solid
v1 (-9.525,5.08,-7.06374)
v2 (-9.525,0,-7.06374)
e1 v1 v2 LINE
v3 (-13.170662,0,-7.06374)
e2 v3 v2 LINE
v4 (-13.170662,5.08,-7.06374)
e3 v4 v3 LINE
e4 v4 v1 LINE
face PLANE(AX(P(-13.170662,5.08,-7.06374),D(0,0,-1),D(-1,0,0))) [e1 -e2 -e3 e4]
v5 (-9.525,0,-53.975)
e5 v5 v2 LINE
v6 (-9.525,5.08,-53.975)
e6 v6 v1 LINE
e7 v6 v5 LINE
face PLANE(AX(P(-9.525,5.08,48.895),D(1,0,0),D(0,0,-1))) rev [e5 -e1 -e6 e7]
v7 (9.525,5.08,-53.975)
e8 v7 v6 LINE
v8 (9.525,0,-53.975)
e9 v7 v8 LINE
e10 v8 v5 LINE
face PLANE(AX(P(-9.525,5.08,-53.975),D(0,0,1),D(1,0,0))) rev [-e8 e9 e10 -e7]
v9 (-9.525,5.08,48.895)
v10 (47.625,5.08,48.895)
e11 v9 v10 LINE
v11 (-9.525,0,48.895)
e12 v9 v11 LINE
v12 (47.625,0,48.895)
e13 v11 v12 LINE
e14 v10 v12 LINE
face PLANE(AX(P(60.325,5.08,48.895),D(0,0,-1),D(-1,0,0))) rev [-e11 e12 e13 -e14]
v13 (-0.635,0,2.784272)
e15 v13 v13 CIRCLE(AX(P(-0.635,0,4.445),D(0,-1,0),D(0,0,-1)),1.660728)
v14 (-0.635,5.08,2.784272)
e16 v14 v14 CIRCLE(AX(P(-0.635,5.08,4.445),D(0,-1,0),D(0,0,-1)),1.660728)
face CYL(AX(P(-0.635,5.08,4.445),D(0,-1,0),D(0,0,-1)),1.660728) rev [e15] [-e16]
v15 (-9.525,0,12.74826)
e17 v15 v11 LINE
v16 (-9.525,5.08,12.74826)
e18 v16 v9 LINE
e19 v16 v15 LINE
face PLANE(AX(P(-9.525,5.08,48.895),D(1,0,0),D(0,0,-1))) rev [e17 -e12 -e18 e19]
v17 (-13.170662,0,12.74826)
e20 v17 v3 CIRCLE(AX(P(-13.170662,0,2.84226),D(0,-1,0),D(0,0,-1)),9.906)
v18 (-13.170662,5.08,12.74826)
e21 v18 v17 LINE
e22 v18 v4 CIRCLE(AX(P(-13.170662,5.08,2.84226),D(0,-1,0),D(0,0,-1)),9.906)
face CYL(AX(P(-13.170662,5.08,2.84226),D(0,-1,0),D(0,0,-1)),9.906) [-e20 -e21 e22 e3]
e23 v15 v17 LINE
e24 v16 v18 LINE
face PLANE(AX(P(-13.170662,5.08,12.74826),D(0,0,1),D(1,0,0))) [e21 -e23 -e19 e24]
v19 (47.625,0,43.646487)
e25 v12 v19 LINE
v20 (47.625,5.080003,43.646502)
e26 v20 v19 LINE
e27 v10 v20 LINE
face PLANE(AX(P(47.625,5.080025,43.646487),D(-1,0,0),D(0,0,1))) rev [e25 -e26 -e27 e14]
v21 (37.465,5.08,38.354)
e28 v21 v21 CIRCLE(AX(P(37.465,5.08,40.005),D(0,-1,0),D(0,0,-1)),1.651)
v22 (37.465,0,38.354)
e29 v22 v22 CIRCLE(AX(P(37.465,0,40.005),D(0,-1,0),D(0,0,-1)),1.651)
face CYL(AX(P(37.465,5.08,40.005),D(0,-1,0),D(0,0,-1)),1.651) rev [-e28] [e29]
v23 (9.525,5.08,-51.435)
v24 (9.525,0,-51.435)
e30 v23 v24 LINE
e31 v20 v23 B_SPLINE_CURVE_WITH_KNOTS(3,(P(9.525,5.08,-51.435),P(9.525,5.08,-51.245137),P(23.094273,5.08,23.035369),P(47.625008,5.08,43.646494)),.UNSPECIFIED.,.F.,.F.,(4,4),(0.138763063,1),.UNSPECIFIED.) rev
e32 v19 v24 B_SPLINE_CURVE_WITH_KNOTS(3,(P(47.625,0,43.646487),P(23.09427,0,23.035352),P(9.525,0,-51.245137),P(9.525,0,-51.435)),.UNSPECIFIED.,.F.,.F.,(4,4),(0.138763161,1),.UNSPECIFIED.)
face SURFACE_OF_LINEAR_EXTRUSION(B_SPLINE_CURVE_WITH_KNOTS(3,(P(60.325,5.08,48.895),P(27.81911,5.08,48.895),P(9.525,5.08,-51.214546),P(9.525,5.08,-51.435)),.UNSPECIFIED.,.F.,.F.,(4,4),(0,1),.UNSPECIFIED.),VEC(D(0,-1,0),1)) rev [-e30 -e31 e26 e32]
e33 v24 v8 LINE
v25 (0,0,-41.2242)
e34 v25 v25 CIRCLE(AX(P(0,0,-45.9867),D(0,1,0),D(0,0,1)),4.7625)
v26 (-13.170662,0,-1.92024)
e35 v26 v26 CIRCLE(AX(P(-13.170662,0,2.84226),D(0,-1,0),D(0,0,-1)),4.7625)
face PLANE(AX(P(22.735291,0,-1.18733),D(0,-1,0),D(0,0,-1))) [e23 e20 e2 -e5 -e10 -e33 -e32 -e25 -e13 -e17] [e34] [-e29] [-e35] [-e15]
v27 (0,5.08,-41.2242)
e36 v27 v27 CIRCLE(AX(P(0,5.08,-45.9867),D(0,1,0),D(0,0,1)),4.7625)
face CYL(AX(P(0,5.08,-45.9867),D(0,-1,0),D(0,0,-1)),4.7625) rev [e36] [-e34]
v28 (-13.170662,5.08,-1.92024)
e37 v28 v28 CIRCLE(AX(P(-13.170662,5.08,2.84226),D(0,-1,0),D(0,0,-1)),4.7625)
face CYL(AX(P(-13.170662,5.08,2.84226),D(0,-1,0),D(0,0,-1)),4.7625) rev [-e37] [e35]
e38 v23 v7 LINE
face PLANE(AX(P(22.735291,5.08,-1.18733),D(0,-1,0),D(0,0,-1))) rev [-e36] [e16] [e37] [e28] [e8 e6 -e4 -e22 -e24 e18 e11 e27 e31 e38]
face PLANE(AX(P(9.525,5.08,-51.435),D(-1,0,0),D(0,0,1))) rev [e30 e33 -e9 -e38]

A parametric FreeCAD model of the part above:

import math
import FreeCAD as App
import Part
import Sketcher
from FreeCAD import Vector
Q = App.Units.Quantity

doc = App.newDocument("Part")
params = doc.addObject("Spreadsheet::Sheet", "Params")
for row, (alias, value) in enumerate([
    ("sketch1_diameter", "0.375 in"),
    ("sketch1_height", "0.1 in"),
    ("sketch1_width", "0.75 in"),
    ("pad1_length", "0.2 in"),
    ("sketch2_height", "0.2 in"),
    ("sketch2_width", "0.75 in"),
    ("pad2_length", "0.2 in"),
    ("sketch3_diameter", "0.13 in"),
    ("sketch4_radius", "0.39 in"),
    ("sketch4_diameter", "0.375 in"),
    ("pad3_length", "0.2 in"),
    ("sketch5_diameter", "0.375 in"),
    ("sketch6_height", "0.2 in"),
    ("sketch6_width", "0.75 in"),
], start=1):
    params.set(f"A{row}", alias)
    params.set(f"B{row}", "=" + value)
    params.setAlias(f"B{row}", alias)

body = doc.addObject("PartDesign::Body", "Body")

# Sketch on XZ plane
sketch1 = body.newObject("Sketcher::SketchObject", "Sketch")
sketch1.AttachmentSupport = (doc.getObject("XZ_Plane"), [""])
sketch1.MapMode = "FlatFace"
sketch1.addGeometry(Part.LineSegment(Vector(9.525, -53.975, 0), Vector(-9.525, -53.975, 0)), False)
sketch1.addGeometry(Part.LineSegment(Vector(-9.525, -53.975, 0), Vector(-9.525, 48.895, 0)), False)
sketch1.addGeometry(Part.LineSegment(Vector(-9.525, 48.895, 0), Vector(60.325, 48.895, 0)), False)
sketch1.addGeometry(Part.BSplineCurve([Vector(9.525, -51.435, 0), Vector(9.525, -51.214546, 0), Vector(27.81911, 48.895, 0), Vector(60.325, 48.895, 0)], [4, 4], [0, 1], False, 3, [1, 1, 1, 1], False), False)
sketch1.addGeometry(Part.LineSegment(Vector(9.525, -51.435, 0), Vector(9.525, -53.975, 0)), False)
sketch1.addGeometry(Part.Circle(Vector(0, -45.9867, 0), Vector(0, 0, 1), 4.7625), False)
sketch1.addConstraint(Sketcher.Constraint("Block", 3))
sketch1.addConstraint(Sketcher.Constraint("Coincident", 0, 2, 1, 1))
sketch1.addConstraint(Sketcher.Constraint("Coincident", 1, 2, 2, 1))
sketch1.addConstraint(Sketcher.Constraint("Coincident", 2, 2, 3, 2))
sketch1.addConstraint(Sketcher.Constraint("Coincident", 3, 1, 4, 1))
sketch1.addConstraint(Sketcher.Constraint("Coincident", 4, 2, 0, 1))
sketch1.addConstraint(Sketcher.Constraint("Horizontal", 0))
sketch1.addConstraint(Sketcher.Constraint("Vertical", 1))
sketch1.addConstraint(Sketcher.Constraint("Horizontal", 2))
sketch1.addConstraint(Sketcher.Constraint("Vertical", 4))
sketch1.addConstraint(Sketcher.Constraint("PointOnObject", 5, 3, -2))
sketch1.addConstraint(Sketcher.Constraint("Diameter", 5, Q("0.375 in")))
sketch1.addConstraint(Sketcher.Constraint("DistanceY", 4, 2, 4, 1, Q("0.1 in")))
sketch1.addConstraint(Sketcher.Constraint("DistanceX", 0, 2, 0, 1, Q("0.75 in")))
sketch1.addConstraint(Sketcher.Constraint("DistanceY", 5, 3, -1, 1, Q("1.8105 in")))
sketch1.setExpression("Constraints[11]", "Params.sketch1_diameter")
sketch1.setExpression("Constraints[12]", "Params.sketch1_height")
sketch1.setExpression("Constraints[13]", "Params.sketch1_width")
pad1 = body.newObject("PartDesign::Pad", "Pad")
pad1.Profile = sketch1
pad1.setExpression("Length", "Params.pad1_length")
pad1.Reversed = True

# Sketch on XZ plane
sketch2 = body.newObject("Sketcher::SketchObject", "Sketch001")
sketch2.AttachmentSupport = (doc.getObject("XZ_Plane"), [""])
sketch2.MapMode = "FlatFace"
sketch2.AttachmentOffset = App.Placement(Vector(0, 0, -0.2 * 25.4), App.Rotation())
sketch2.addGeometry(Part.LineSegment(Vector(41, 49, 0), Vector(41, 54, 0)), False)
sketch2.addGeometry(Part.LineSegment(Vector(41, 54, 0), Vector(60, 54, 0)), False)
sketch2.addGeometry(Part.LineSegment(Vector(60, 54, 0), Vector(60, 49, 0)), False)
sketch2.addGeometry(Part.LineSegment(Vector(60, 49, 0), Vector(41, 49, 0)), False)
sketch2.addConstraint(Sketcher.Constraint("Coincident", 0, 2, 1, 1))
sketch2.addConstraint(Sketcher.Constraint("Coincident", 1, 2, 2, 1))
sketch2.addConstraint(Sketcher.Constraint("Coincident", 2, 2, 3, 1))
sketch2.addConstraint(Sketcher.Constraint("Coincident", 3, 2, 0, 1))
sketch2.addConstraint(Sketcher.Constraint("Vertical", 0))
sketch2.addConstraint(Sketcher.Constraint("Horizontal", 1))
sketch2.addConstraint(Sketcher.Constraint("Vertical", 2))
sketch2.addConstraint(Sketcher.Constraint("Horizontal", 3))
sketch2.addConstraint(Sketcher.Constraint("DistanceY", 0, 1, 0, 2, Q("0.2 in")))
sketch2.addConstraint(Sketcher.Constraint("DistanceX", 1, 1, 1, 2, Q("0.75 in")))
sketch2.addConstraint(Sketcher.Constraint("DistanceX", -1, 1, 0, 2, Q("1.625 in")))
sketch2.addConstraint(Sketcher.Constraint("DistanceY", -1, 1, 0, 2, Q("2.125 in")))
sketch2.setExpression("Constraints[8]", "Params.sketch2_height")
sketch2.setExpression("Constraints[9]", "Params.sketch2_width")
pad2 = body.newObject("PartDesign::Pad", "Pad001")
pad2.Profile = sketch2
pad2.setExpression("Length", "Params.pad2_length")

# Sketch on XZ plane
sketch3 = body.newObject("Sketcher::SketchObject", "Sketch002")
sketch3.AttachmentSupport = (doc.getObject("XZ_Plane"), [""])
sketch3.MapMode = "FlatFace"
sketch3.addGeometry(Part.Circle(Vector(-0.6, 4.4, 0), Vector(0, 0, 1), 1.7), False)
sketch3.addGeometry(Part.Circle(Vector(37.5, 40, 0), Vector(0, 0, 1), 1.7), False)
sketch3.addConstraint(Sketcher.Constraint("Diameter", 1, Q("0.13 in")))
sketch3.addConstraint(Sketcher.Constraint("DistanceX", 0, 3, 1, 3, Q("1.5 in")))
sketch3.addConstraint(Sketcher.Constraint("DistanceY", 0, 3, 1, 3, Q("1.4 in")))
sketch3.addConstraint(Sketcher.Constraint("DistanceX", 0, 3, -1, 1, Q("0.025 in")))
sketch3.addConstraint(Sketcher.Constraint("DistanceY", -1, 1, 0, 3, Q("0.175 in")))
sketch3.addConstraint(Sketcher.Constraint("Diameter", 0, 3.321457))
sketch3.setExpression("Constraints[0]", "Params.sketch3_diameter")
pocket1 = body.newObject("PartDesign::Pocket", "Pocket")
pocket1.Profile = sketch3
pocket1.Type = "ThroughAll"
pocket1.Midplane = True

# Sketch on XZ plane
sketch4 = body.newObject("Sketcher::SketchObject", "Sketch003")
sketch4.AttachmentSupport = (doc.getObject("XZ_Plane"), [""])
sketch4.MapMode = "FlatFace"
sketch4.addGeometry(Part.LineSegment(Vector(-9.5, 12.7, 0), Vector(-13.2, 12.7, 0)), False)
sketch4.addGeometry(Part.ArcOfCircle(Part.Circle(Vector(-13.2, 2.8, 0), Vector(0, 0, 1), 9.9), math.radians(90), math.radians(270)), False)
sketch4.addGeometry(Part.LineSegment(Vector(-13.2, -7.1, 0), Vector(-9.5, -7.1, 0)), False)
sketch4.addGeometry(Part.LineSegment(Vector(-9.5, -7.1, 0), Vector(-9.5, -6.4, 0)), False)
sketch4.addGeometry(Part.ArcOfCircle(Part.Circle(Vector(-13.2, 2.8, 0), Vector(0, 0, 1), 9.9), math.radians(-68), math.radians(68)), False)
sketch4.addGeometry(Part.LineSegment(Vector(-9.5, 12.1, 0), Vector(-9.5, 12.7, 0)), False)
sketch4.addGeometry(Part.Circle(Vector(-13.2, 2.8, 0), Vector(0, 0, 1), 4.8), False)
sketch4.addConstraint(Sketcher.Constraint("Tangent", 0, 2, 1, 1))
sketch4.addConstraint(Sketcher.Constraint("Tangent", 1, 2, 2, 1))
sketch4.addConstraint(Sketcher.Constraint("Coincident", 2, 2, 3, 1))
sketch4.addConstraint(Sketcher.Constraint("Coincident", 3, 2, 4, 1))
sketch4.addConstraint(Sketcher.Constraint("Coincident", 4, 2, 5, 1))
sketch4.addConstraint(Sketcher.Constraint("Coincident", 5, 2, 0, 1))
sketch4.addConstraint(Sketcher.Constraint("Horizontal", 0))
sketch4.addConstraint(Sketcher.Constraint("Horizontal", 2))
sketch4.addConstraint(Sketcher.Constraint("Vertical", 3))
sketch4.addConstraint(Sketcher.Constraint("Vertical", 5))
sketch4.addConstraint(Sketcher.Constraint("Coincident", 4, 3, 1, 3))
sketch4.addConstraint(Sketcher.Constraint("Coincident", 6, 3, 1, 3))
sketch4.addConstraint(Sketcher.Constraint("Equal", 1, 4))
sketch4.addConstraint(Sketcher.Constraint("Vertical", 3, 2, 4, 2))
sketch4.addConstraint(Sketcher.Constraint("Radius", 1, Q("0.39 in")))
sketch4.addConstraint(Sketcher.Constraint("Diameter", 6, Q("0.375 in")))
sketch4.addConstraint(Sketcher.Constraint("DistanceX", 2, 2, -1, 1, Q("0.375 in")))
sketch4.addConstraint(Sketcher.Constraint("DistanceY", -1, 1, 1, 3, Q("0.1119 in")))
sketch4.addConstraint(Sketcher.Constraint("DistanceX", 0, 2, 0, 1, 3.645662))
sketch4.setExpression("Constraints[14]", "Params.sketch4_radius")
sketch4.setExpression("Constraints[15]", "Params.sketch4_diameter")
pad3 = body.newObject("PartDesign::Pad", "Pad002")
pad3.Profile = sketch4
pad3.setExpression("Length", "Params.pad3_length")
pad3.Reversed = True

# Sketch on XZ plane
sketch5 = body.newObject("Sketcher::SketchObject", "Sketch004")
sketch5.AttachmentSupport = (doc.getObject("XZ_Plane"), [""])
sketch5.MapMode = "FlatFace"
sketch5.AttachmentOffset = App.Placement(Vector(0, 0, -0.2 * 25.4), App.Rotation())
sketch5.addGeometry(Part.Circle(Vector(-13.2, 2.8, 0), Vector(0, 0, 1), 4.8), False)
sketch5.addConstraint(Sketcher.Constraint("Diameter", 0, Q("0.375 in")))
sketch5.addConstraint(Sketcher.Constraint("DistanceY", -1, 1, 0, 3, Q("0.1119 in")))
sketch5.addConstraint(Sketcher.Constraint("DistanceX", 0, 3, -1, 1, 13.170662))
sketch5.setExpression("Constraints[0]", "Params.sketch5_diameter")
pocket2 = body.newObject("PartDesign::Pocket", "Pocket001")
pocket2.Profile = sketch5
pocket2.Type = "ThroughAll"
pocket2.Reversed = True

# Sketch on XZ plane
sketch6 = body.newObject("Sketcher::SketchObject", "Sketch005")
sketch6.AttachmentSupport = (doc.getObject("XZ_Plane"), [""])
sketch6.MapMode = "FlatFace"
sketch6.addGeometry(Part.LineSegment(Vector(41, 54, 0), Vector(41, 49, 0)), False)
sketch6.addGeometry(Part.LineSegment(Vector(41, 49, 0), Vector(60, 49, 0)), False)
sketch6.addGeometry(Part.LineSegment(Vector(60, 49, 0), Vector(60, 54, 0)), False)
sketch6.addGeometry(Part.LineSegment(Vector(60, 54, 0), Vector(41, 54, 0)), False)
sketch6.addConstraint(Sketcher.Constraint("Coincident", 0, 2, 1, 1))
sketch6.addConstraint(Sketcher.Constraint("Coincident", 1, 2, 2, 1))
sketch6.addConstraint(Sketcher.Constraint("Coincident", 2, 2, 3, 1))
sketch6.addConstraint(Sketcher.Constraint("Coincident", 3, 2, 0, 1))
sketch6.addConstraint(Sketcher.Constraint("Vertical", 0))
sketch6.addConstraint(Sketcher.Constraint("Horizontal", 1))
sketch6.addConstraint(Sketcher.Constraint("Vertical", 2))
sketch6.addConstraint(Sketcher.Constraint("Horizontal", 3))
sketch6.addConstraint(Sketcher.Constraint("DistanceY", 0, 2, 0, 1, Q("0.2 in")))
sketch6.addConstraint(Sketcher.Constraint("DistanceX", 1, 1, 1, 2, Q("0.75 in")))
sketch6.addConstraint(Sketcher.Constraint("DistanceX", -1, 1, 0, 2, Q("1.625 in")))
sketch6.addConstraint(Sketcher.Constraint("DistanceY", -1, 1, 0, 2, Q("1.925 in")))
sketch6.setExpression("Constraints[8]", "Params.sketch6_height")
sketch6.setExpression("Constraints[9]", "Params.sketch6_width")
pocket3 = body.newObject("PartDesign::Pocket", "Pocket002")
pocket3.Profile = sketch6
pocket3.Type = "ThroughAll"
pocket3.Midplane = True

# Sketch on XZ plane
sketch7 = body.newObject("Sketcher::SketchObject", "Sketch006")
sketch7.AttachmentSupport = (doc.getObject("XZ_Plane"), [""])
sketch7.MapMode = "FlatFace"
sketch7.addGeometry(Part.LineSegment(Vector(47.625, 48.895, 0), Vector(47.625, 43.646487, 0)), False)
sketch7.addGeometry(Part.BSplineCurve([Vector(60.325, 48.895, 0), Vector(55.81438, 48.895, 0), Vector(51.577411, 46.967369, 0), Vector(47.625, 43.646487, 0)], [4, 4], [0, 0.138763161], False, 3, [1, 1, 1, 1], False), False)
sketch7.addGeometry(Part.LineSegment(Vector(60.325, 48.895, 0), Vector(47.625, 48.895, 0)), False)
sketch7.addConstraint(Sketcher.Constraint("Block", 1))
sketch7.addConstraint(Sketcher.Constraint("Coincident", 0, 2, 1, 2))
sketch7.addConstraint(Sketcher.Constraint("Coincident", 1, 1, 2, 1))
sketch7.addConstraint(Sketcher.Constraint("Coincident", 2, 2, 0, 1))
sketch7.addConstraint(Sketcher.Constraint("Vertical", 0))
sketch7.addConstraint(Sketcher.Constraint("Horizontal", 2))
pocket4 = body.newObject("PartDesign::Pocket", "Pocket003")
pocket4.Profile = sketch7
pocket4.Type = "ThroughAll"
pocket4.Midplane = True

doc.recompute()
